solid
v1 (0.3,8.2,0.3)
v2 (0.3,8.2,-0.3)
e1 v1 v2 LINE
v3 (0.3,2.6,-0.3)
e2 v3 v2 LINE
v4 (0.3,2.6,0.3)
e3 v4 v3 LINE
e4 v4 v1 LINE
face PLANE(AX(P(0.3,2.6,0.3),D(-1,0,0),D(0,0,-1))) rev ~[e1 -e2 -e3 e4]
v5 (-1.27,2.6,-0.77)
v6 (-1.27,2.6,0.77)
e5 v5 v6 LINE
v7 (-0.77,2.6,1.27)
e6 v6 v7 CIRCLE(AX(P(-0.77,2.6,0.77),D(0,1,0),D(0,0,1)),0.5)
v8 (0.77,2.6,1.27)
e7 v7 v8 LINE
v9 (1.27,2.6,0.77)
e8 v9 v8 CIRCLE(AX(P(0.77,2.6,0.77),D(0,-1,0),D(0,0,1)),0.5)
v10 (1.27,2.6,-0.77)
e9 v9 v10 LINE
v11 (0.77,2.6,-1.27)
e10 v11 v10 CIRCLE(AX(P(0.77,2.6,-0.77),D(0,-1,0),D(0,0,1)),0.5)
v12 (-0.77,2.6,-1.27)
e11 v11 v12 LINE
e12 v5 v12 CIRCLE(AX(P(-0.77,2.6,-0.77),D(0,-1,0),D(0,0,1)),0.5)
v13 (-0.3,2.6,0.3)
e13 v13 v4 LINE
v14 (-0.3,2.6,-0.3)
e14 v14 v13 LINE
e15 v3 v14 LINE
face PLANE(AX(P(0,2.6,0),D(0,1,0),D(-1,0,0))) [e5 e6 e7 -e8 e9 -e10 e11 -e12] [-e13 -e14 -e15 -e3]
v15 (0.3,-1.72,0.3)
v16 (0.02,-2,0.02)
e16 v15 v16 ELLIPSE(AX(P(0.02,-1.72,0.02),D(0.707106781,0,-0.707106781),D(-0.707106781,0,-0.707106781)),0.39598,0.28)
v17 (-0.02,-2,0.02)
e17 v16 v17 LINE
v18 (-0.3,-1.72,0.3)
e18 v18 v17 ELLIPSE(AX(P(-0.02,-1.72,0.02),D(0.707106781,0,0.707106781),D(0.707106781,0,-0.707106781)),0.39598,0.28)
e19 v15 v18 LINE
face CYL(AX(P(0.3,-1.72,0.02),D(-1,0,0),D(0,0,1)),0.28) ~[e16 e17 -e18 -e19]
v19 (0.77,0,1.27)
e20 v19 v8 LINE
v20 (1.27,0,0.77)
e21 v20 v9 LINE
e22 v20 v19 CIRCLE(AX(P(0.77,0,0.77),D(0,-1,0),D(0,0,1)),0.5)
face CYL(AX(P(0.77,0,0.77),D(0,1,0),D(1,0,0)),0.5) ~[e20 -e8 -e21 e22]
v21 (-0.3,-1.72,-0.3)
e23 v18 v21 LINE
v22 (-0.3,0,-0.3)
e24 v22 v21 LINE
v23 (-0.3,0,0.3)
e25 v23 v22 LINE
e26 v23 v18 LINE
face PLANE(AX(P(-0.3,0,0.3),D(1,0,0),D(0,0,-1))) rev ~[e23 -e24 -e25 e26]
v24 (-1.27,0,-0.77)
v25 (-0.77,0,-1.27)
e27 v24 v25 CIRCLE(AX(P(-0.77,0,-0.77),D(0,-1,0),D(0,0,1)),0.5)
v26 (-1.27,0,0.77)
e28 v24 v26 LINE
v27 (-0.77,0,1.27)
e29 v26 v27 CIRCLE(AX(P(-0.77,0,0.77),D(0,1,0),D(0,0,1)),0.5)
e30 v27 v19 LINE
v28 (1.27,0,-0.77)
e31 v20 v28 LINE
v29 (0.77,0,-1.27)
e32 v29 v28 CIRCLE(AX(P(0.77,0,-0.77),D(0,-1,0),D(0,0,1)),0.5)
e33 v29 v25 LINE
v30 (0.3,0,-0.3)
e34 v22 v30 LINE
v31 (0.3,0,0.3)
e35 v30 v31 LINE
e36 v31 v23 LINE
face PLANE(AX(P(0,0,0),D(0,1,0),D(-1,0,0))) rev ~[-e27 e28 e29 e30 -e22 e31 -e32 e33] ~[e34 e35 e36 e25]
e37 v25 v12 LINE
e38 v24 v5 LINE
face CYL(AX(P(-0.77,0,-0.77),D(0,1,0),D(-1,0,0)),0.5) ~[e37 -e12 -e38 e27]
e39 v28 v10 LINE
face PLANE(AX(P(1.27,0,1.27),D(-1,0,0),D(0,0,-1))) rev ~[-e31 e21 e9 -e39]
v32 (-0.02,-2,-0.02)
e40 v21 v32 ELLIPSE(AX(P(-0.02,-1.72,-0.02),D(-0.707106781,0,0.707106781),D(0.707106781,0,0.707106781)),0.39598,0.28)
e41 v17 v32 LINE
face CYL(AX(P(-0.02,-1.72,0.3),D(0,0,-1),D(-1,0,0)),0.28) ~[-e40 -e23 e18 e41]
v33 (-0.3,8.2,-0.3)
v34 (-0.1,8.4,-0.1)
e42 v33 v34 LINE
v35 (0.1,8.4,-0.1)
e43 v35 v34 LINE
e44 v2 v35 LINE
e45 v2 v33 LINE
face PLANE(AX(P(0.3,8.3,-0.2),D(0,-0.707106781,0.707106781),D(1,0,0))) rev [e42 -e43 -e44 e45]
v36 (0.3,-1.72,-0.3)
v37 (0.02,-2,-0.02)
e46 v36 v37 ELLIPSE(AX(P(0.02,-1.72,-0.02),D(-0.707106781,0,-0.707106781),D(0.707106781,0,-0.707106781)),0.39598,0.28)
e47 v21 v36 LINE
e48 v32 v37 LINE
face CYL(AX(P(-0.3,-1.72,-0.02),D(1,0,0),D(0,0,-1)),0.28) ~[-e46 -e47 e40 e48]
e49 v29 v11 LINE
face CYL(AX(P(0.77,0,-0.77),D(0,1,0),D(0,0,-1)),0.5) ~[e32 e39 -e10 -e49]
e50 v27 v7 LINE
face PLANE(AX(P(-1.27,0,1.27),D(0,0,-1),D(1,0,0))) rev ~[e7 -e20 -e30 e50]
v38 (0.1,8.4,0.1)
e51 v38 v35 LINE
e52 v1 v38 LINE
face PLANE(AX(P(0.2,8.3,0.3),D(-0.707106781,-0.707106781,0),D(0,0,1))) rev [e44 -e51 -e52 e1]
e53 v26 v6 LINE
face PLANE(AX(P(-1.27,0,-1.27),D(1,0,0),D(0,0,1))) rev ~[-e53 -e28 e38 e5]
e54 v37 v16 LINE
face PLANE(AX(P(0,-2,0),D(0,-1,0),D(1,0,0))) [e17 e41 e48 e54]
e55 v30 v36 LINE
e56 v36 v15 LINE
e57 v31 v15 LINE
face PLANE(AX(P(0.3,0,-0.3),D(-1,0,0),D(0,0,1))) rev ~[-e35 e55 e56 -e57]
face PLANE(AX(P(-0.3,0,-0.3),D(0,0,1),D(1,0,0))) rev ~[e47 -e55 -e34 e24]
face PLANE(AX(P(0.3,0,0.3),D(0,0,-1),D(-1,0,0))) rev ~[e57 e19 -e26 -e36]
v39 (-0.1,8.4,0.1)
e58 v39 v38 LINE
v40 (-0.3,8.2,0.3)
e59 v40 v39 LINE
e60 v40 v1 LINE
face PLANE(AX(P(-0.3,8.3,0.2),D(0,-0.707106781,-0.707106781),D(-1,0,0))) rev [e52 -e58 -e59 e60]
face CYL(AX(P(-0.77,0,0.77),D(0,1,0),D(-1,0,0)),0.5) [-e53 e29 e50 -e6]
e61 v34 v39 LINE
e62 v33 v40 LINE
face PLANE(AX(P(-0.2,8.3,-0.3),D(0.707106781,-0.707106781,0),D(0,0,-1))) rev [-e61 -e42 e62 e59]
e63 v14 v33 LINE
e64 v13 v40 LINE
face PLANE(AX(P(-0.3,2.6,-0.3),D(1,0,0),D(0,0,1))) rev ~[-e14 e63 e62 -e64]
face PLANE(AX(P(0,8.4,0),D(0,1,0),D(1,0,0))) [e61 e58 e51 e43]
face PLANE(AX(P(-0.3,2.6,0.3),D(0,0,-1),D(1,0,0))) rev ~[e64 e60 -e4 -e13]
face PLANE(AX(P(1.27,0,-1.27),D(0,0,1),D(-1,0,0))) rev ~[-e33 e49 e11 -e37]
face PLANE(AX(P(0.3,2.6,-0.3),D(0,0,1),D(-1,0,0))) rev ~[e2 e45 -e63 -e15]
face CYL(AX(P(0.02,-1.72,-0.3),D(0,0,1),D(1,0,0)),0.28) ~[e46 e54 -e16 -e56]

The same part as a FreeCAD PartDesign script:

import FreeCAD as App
import Part
import Sketcher
from FreeCAD import Vector
Q = App.Units.Quantity


def edges_at(feature, points):
    """Names of the edges that pass closest to the given points."""
    edges = feature.Shape.Edges
    near = lambda p: min(range(len(edges)), key=lambda i: edges[i].distToShape(Part.Vertex(*p))[0])
    return sorted({f"Edge{near(p) + 1}" for p in points})

doc = App.newDocument("Part")
body = doc.addObject("PartDesign::Body", "Body")

sketch1 = body.newObject("Sketcher::SketchObject", "Sketch")
sketch1.AttachmentSupport = (doc.getObject("XZ_Plane"), [""])
sketch1.MapMode = "FlatFace"
sketch1.addGeometry([
    Part.LineSegment(Vector(-1.3, -1.3, 0), Vector(-1.3, 1.3, 0)),
    Part.LineSegment(Vector(-1.3, 1.3, 0), Vector(1.3, 1.3, 0)),
    Part.LineSegment(Vector(1.3, 1.3, 0), Vector(1.3, -1.3, 0)),
    Part.LineSegment(Vector(1.3, -1.3, 0), Vector(-1.3, -1.3, 0)),
], False)
sketch1.addConstraint([
    Sketcher.Constraint("Coincident", 0, 2, 1, 1),
    Sketcher.Constraint("Coincident", 1, 2, 2, 1),
    Sketcher.Constraint("Coincident", 2, 2, 3, 1),
    Sketcher.Constraint("Coincident", 3, 2, 0, 1),
    Sketcher.Constraint("Vertical", 0),
    Sketcher.Constraint("Horizontal", 1),
    Sketcher.Constraint("Vertical", 2),
    Sketcher.Constraint("Horizontal", 3),
    Sketcher.Constraint("Symmetric", 0, 2, 2, 2, -1, 1),
    Sketcher.Constraint("Equal", 3, 0),
    Sketcher.Constraint("DistanceX", 1, 1, 1, 2, Q("2.54 mm")),
])
pad1 = body.newObject("PartDesign::Pad", "Pad")
pad1.Profile = sketch1
pad1.Length = 2.6
pad1.Reversed = True
doc.recompute()

fillet = body.newObject("PartDesign::Fillet", "Fillet")
fillet.Base = (pad1, edges_at(pad1, [
    (1.27, 1.3, 1.27),
    (1.27, 1.3, -1.27),
    (-1.27, 1.3, 1.27),
    (-1.27, 1.3, -1.27),
]))
fillet.Radius = 0.5

sketch2 = body.newObject("Sketcher::SketchObject", "Sketch001")
sketch2.AttachmentSupport = (doc.getObject("XZ_Plane"), [""])
sketch2.MapMode = "FlatFace"
sketch2.AttachmentOffset = App.Placement(Vector(0, 0, -2.6), App.Rotation())
sketch2.addGeometry([
    Part.LineSegment(Vector(-0.3, -0.3, 0), Vector(-0.3, 0.3, 0)),
    Part.LineSegment(Vector(-0.3, 0.3, 0), Vector(0.3, 0.3, 0)),
    Part.LineSegment(Vector(0.3, 0.3, 0), Vector(0.3, -0.3, 0)),
    Part.LineSegment(Vector(0.3, -0.3, 0), Vector(-0.3, -0.3, 0)),
], False)
sketch2.addConstraint([
    Sketcher.Constraint("Coincident", 0, 2, 1, 1),
    Sketcher.Constraint("Coincident", 1, 2, 2, 1),
    Sketcher.Constraint("Coincident", 2, 2, 3, 1),
    Sketcher.Constraint("Coincident", 3, 2, 0, 1),
    Sketcher.Constraint("Vertical", 0),
    Sketcher.Constraint("Horizontal", 1),
    Sketcher.Constraint("Vertical", 2),
    Sketcher.Constraint("Horizontal", 3),
    Sketcher.Constraint("Symmetric", 0, 2, 2, 2, -1, 1),
    Sketcher.Constraint("Equal", 3, 0),
    Sketcher.Constraint("DistanceX", 1, 1, 1, 2, Q("0.6 mm")),
])
pad2 = body.newObject("PartDesign::Pad", "Pad001")
pad2.Profile = sketch2
pad2.Length = 5.8
pad2.Reversed = True
doc.recompute()

chamfer = body.newObject("PartDesign::Chamfer", "Chamfer")
chamfer.Base = (pad2, edges_at(pad2, [
    (0.3, 8.4, 0),
    (0, 8.4, 0.3),
    (-0.3, 8.4, 0),
    (0, 8.4, -0.3),
]))
chamfer.Size = 0.2

sketch3 = body.newObject("Sketcher::SketchObject", "Sketch002")
sketch3.AttachmentSupport = (doc.getObject("XZ_Plane"), [""])
sketch3.MapMode = "FlatFace"
sketch3.addGeometry([
    Part.LineSegment(Vector(0.3, -0.3, 0), Vector(0.3, 0.3, 0)),
    Part.LineSegment(Vector(0.3, 0.3, 0), Vector(-0.3, 0.3, 0)),
    Part.LineSegment(Vector(-0.3, 0.3, 0), Vector(-0.3, -0.3, 0)),
    Part.LineSegment(Vector(-0.3, -0.3, 0), Vector(0.3, -0.3, 0)),
], False)
sketch3.addConstraint([
    Sketcher.Constraint("Coincident", 0, 2, 1, 1),
    Sketcher.Constraint("Coincident", 1, 2, 2, 1),
    Sketcher.Constraint("Coincident", 2, 2, 3, 1),
    Sketcher.Constraint("Coincident", 3, 2, 0, 1),
    Sketcher.Constraint("Vertical", 0),
    Sketcher.Constraint("Horizontal", 1),
    Sketcher.Constraint("Vertical", 2),
    Sketcher.Constraint("Horizontal", 3),
    Sketcher.Constraint("Symmetric", 0, 2, 2, 2, -1, 1),
    Sketcher.Constraint("Equal", 3, 0),
    Sketcher.Constraint("DistanceX", 1, 2, 1, 1, Q("0.6 mm")),
])
pad3 = body.newObject("PartDesign::Pad", "Pad002")
pad3.Profile = sketch3
pad3.Length = 2
doc.recompute()

fillet2 = body.newObject("PartDesign::Fillet", "Fillet001")
fillet2.Base = (pad3, edges_at(pad3, [
    (0, -2, -0.3),
    (-0.3, -2, 0),
    (0, -2, 0.3),
    (0.3, -2, 0),
]))
fillet2.Radius = 0.28

doc.recompute()
